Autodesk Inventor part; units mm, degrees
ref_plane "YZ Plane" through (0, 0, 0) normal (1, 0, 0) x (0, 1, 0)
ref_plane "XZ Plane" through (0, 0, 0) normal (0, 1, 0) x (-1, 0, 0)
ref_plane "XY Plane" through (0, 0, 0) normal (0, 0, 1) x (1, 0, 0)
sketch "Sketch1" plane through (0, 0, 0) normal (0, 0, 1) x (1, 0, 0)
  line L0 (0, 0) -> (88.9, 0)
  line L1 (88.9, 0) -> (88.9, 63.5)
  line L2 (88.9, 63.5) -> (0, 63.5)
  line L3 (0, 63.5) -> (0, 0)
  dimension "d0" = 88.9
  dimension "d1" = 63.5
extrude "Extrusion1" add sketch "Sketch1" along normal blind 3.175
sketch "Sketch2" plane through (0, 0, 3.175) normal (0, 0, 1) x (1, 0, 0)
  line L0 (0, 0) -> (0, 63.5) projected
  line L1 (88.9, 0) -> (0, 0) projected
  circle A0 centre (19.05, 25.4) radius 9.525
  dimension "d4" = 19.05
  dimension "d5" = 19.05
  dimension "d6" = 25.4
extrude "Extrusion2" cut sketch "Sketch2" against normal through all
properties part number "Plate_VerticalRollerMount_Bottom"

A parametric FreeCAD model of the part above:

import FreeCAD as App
import Part
import Sketcher

V = App.Vector
Q = App.Units.Quantity

doc = App.newDocument("Part")
body = doc.addObject("PartDesign::Body", "Body")

sketch1 = body.newObject("Sketcher::SketchObject", "Sketch")
sketch1.AttachmentSupport = (doc.getObject("XY_Plane"), [""])
sketch1.MapMode = "FlatFace"
sketch1.addGeometry(Part.LineSegment(V(0, 63.5, 0), V(0, 0, 0)), False)
sketch1.addGeometry(Part.LineSegment(V(0, 0, 0), V(88.9, 0, 0)), False)
sketch1.addGeometry(Part.LineSegment(V(88.9, 0, 0), V(88.9, 63.5, 0)), False)
sketch1.addGeometry(Part.LineSegment(V(88.9, 63.5, 0), V(0, 63.5, 0)), False)
sketch1.addConstraint(Sketcher.Constraint("Coincident", 0, 2, 1, 1))
sketch1.addConstraint(Sketcher.Constraint("Coincident", 1, 2, 2, 1))
sketch1.addConstraint(Sketcher.Constraint("Coincident", 2, 2, 3, 1))
sketch1.addConstraint(Sketcher.Constraint("Coincident", 3, 2, 0, 1))
sketch1.addConstraint(Sketcher.Constraint("Vertical", 0))
sketch1.addConstraint(Sketcher.Constraint("Horizontal", 1))
sketch1.addConstraint(Sketcher.Constraint("Vertical", 2))
sketch1.addConstraint(Sketcher.Constraint("Horizontal", 3))
sketch1.addConstraint(Sketcher.Constraint("Coincident", 0, 2, -1, 1))
sketch1.addConstraint(Sketcher.Constraint("DistanceX", 1, 1, 1, 2, Q("3.5 in")))
sketch1.addConstraint(Sketcher.Constraint("DistanceY", 0, 2, 0, 1, Q("2.5 in")))
pad1 = body.newObject("PartDesign::Pad", "Pad")
pad1.Profile = sketch1
pad1.Length = Q("0.125 in")

sketch2 = body.newObject("Sketcher::SketchObject", "Sketch001")
sketch2.AttachmentSupport = (doc.getObject("XY_Plane"), [""])
sketch2.MapMode = "FlatFace"
sketch2.AttachmentOffset = App.Placement(V(0, 0, 0.125 * 25.4), App.Rotation())
sketch2.addGeometry(Part.Circle(V(19.05, 25.4, 0), V(0, 0, 1), 9.525), False)
sketch2.addConstraint(Sketcher.Constraint("Diameter", 0, Q("0.75 in")))
sketch2.addConstraint(Sketcher.Constraint("DistanceY", -1, 1, 0, 3, Q("1 in")))
sketch2.addConstraint(Sketcher.Constraint("DistanceX", -1, 1, 0, 3, Q("0.75 in")))
pocket1 = body.newObject("PartDesign::Pocket", "Pocket")
pocket1.Profile = sketch2
pocket1.Type = "ThroughAll"

doc.recompute()
